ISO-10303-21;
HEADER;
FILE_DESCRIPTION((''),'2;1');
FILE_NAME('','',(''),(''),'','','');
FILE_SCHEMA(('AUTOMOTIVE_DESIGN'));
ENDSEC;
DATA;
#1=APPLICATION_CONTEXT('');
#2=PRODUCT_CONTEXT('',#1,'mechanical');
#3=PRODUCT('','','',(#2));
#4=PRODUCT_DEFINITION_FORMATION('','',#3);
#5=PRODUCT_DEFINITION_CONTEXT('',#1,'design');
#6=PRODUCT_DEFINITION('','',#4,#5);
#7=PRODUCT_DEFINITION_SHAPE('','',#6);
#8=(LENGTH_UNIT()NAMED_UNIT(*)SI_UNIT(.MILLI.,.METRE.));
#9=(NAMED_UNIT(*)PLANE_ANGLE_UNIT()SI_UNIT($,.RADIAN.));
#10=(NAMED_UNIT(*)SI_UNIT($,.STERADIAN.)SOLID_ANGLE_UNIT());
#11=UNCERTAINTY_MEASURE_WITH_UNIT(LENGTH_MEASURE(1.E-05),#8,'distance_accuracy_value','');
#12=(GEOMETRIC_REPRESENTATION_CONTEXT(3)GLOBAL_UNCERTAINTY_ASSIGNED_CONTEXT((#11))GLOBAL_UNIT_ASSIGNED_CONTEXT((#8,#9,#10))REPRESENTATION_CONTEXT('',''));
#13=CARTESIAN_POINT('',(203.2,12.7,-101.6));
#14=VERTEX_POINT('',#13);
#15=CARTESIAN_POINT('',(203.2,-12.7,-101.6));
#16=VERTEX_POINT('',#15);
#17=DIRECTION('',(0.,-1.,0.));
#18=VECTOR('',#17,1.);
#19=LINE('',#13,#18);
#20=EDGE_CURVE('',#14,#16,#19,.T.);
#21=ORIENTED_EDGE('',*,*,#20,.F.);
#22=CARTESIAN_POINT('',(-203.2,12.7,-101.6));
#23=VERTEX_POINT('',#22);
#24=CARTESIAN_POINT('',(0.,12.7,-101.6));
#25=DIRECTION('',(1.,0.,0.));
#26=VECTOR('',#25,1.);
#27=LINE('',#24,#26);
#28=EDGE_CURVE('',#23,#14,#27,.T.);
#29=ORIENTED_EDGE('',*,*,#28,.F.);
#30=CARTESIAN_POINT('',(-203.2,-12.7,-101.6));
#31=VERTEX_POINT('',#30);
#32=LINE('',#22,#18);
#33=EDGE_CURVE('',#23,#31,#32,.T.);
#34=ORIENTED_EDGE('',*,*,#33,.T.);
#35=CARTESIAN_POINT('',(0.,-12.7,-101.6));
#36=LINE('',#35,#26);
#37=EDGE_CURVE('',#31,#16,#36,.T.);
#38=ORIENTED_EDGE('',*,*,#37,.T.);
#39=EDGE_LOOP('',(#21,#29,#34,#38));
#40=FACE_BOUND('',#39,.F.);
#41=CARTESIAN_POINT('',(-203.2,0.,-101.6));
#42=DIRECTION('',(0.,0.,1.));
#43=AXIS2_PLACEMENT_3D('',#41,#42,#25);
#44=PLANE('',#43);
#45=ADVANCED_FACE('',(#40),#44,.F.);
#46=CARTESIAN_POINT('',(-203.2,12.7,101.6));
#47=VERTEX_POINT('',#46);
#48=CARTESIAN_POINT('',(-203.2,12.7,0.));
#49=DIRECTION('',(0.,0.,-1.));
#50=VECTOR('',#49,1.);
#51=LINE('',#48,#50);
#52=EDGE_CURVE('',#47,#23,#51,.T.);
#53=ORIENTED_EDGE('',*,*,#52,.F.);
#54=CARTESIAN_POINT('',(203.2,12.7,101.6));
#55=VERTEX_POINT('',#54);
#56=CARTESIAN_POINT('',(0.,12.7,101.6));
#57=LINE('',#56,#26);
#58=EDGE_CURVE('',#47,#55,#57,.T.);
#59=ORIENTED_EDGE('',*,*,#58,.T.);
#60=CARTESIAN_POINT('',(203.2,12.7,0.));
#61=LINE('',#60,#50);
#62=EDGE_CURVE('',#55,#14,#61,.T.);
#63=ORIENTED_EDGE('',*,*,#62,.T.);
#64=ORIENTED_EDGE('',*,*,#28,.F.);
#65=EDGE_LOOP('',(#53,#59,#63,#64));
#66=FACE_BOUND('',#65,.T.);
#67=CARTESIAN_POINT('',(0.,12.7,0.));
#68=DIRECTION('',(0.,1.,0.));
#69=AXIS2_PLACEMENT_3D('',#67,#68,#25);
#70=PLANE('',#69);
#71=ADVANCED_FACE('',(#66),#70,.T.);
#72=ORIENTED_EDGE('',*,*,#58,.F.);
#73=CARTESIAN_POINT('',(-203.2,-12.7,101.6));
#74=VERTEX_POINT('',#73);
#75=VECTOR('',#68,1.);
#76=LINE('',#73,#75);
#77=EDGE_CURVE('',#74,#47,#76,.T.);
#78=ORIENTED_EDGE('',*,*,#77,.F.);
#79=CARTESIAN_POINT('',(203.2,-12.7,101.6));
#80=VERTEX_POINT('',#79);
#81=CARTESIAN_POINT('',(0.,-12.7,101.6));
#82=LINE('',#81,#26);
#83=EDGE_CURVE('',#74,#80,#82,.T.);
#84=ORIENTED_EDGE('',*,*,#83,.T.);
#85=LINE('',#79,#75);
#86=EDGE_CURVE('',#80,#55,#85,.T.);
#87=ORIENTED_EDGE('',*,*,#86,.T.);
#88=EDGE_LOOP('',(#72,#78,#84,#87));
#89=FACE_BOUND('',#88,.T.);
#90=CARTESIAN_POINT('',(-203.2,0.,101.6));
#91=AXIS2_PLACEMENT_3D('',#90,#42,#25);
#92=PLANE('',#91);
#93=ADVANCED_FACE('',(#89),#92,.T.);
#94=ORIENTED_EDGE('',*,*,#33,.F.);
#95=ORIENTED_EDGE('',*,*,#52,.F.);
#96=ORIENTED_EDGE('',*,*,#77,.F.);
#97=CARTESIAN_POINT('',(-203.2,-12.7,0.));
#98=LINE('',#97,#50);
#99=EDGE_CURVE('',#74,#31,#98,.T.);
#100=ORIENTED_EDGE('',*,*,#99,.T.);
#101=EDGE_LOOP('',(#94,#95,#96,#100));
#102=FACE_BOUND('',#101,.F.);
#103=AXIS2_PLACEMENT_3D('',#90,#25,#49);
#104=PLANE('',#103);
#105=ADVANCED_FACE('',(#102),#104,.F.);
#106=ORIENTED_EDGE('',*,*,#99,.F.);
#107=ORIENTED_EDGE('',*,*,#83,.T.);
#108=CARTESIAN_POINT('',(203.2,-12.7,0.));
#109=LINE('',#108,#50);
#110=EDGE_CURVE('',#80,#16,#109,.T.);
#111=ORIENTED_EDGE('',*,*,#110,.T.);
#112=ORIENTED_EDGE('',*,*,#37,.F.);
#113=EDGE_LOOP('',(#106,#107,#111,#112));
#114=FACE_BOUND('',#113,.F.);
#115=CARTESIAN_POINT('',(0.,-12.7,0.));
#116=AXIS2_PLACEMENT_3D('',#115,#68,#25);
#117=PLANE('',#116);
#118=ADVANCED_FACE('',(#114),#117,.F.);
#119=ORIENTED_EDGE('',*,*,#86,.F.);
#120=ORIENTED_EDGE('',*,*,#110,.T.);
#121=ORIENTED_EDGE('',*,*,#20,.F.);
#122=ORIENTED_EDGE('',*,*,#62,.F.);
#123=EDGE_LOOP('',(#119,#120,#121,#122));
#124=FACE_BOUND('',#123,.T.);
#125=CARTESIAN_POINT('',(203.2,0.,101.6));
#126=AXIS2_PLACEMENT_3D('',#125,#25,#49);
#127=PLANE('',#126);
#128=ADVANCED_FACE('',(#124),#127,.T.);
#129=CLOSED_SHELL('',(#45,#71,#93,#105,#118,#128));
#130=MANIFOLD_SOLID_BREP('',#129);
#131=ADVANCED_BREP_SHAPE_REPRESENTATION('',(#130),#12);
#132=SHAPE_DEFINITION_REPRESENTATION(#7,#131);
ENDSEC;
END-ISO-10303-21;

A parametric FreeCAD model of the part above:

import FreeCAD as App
import Part
import Sketcher

V = App.Vector
Q = App.Units.Quantity

doc = App.newDocument("Part")
params = doc.addObject("Spreadsheet::Sheet", "Params")
for row, (alias, value) in enumerate([
    ("sketch1_width", "16 in"),
    ("sketch1_height", "8 in"),
    ("pad1_length", "1 in"),
], start=1):
    params.set(f"A{row}", alias)
    params.set(f"B{row}", "=" + value)
    params.setAlias(f"B{row}", alias)

body = doc.addObject("PartDesign::Body", "Body")

# Sketch on XZ plane
sketch1 = body.newObject("Sketcher::SketchObject", "Sketch")
sketch1.AttachmentSupport = (doc.getObject("XZ_Plane"), [""])
sketch1.MapMode = "FlatFace"
sketch1.addGeometry(Part.LineSegment(V(-203, -102, 0), V(-203, 102, 0)), False)
sketch1.addGeometry(Part.LineSegment(V(-203, 102, 0), V(203, 102, 0)), False)
sketch1.addGeometry(Part.LineSegment(V(203, 102, 0), V(203, -102, 0)), False)
sketch1.addGeometry(Part.LineSegment(V(203, -102, 0), V(-203, -102, 0)), False)
sketch1.addConstraint(Sketcher.Constraint("Coincident", 0, 2, 1, 1))
sketch1.addConstraint(Sketcher.Constraint("Coincident", 1, 2, 2, 1))
sketch1.addConstraint(Sketcher.Constraint("Coincident", 2, 2, 3, 1))
sketch1.addConstraint(Sketcher.Constraint("Coincident", 3, 2, 0, 1))
sketch1.addConstraint(Sketcher.Constraint("Vertical", 0))
sketch1.addConstraint(Sketcher.Constraint("Horizontal", 1))
sketch1.addConstraint(Sketcher.Constraint("Vertical", 2))
sketch1.addConstraint(Sketcher.Constraint("Horizontal", 3))
sketch1.addConstraint(Sketcher.Constraint("Symmetric", 0, 2, 2, 2, -1, 1))
sketch1.addConstraint(Sketcher.Constraint("DistanceX", 1, 1, 1, 2, Q("16 in")))
sketch1.addConstraint(Sketcher.Constraint("DistanceY", 0, 1, 0, 2, Q("8 in")))
sketch1.setExpression("Constraints[9]", "Params.sketch1_width")
sketch1.setExpression("Constraints[10]", "Params.sketch1_height")
pad1 = body.newObject("PartDesign::Pad", "Pad")
pad1.Profile = sketch1
pad1.setExpression("Length", "Params.pad1_length")
pad1.Midplane = True

doc.recompute()
